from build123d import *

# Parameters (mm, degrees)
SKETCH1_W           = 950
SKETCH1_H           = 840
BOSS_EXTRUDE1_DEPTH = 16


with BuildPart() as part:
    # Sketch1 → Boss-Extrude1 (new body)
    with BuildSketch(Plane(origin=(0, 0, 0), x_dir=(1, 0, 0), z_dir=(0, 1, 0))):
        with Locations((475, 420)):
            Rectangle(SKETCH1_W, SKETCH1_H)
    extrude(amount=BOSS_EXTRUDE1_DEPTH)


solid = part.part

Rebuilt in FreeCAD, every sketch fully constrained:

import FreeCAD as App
import Part
import Sketcher
from FreeCAD import Vector

doc = App.newDocument("Part")
params = doc.addObject("Spreadsheet::Sheet", "Params")
for row, (alias, value) in enumerate([
    ("sketch1_width", "950 mm"),
    ("sketch1_height", "840 mm"),
    ("pad1_length", "16 mm"),
], start=1):
    params.set(f"A{row}", alias)
    params.set(f"B{row}", "=" + value)
    params.setAlias(f"B{row}", alias)

body = doc.addObject("PartDesign::Body", "Body")

# Sketch on XZ plane
sketch1 = body.newObject("Sketcher::SketchObject", "Sketch")
sketch1.AttachmentSupport = (doc.getObject("XZ_Plane"), [""])
sketch1.MapMode = "FlatFace"
sketch1.addGeometry(Part.LineSegment(Vector(0, -840, 0), Vector(0, 0, 0)), False)
sketch1.addGeometry(Part.LineSegment(Vector(0, 0, 0), Vector(950, 0, 0)), False)
sketch1.addGeometry(Part.LineSegment(Vector(950, 0, 0), Vector(950, -840, 0)), False)
sketch1.addGeometry(Part.LineSegment(Vector(950, -840, 0), Vector(0, -840, 0)), False)
sketch1.addConstraint(Sketcher.Constraint("Coincident", 0, 2, 1, 1))
sketch1.addConstraint(Sketcher.Constraint("Coincident", 1, 2, 2, 1))
sketch1.addConstraint(Sketcher.Constraint("Coincident", 2, 2, 3, 1))
sketch1.addConstraint(Sketcher.Constraint("Coincident", 3, 2, 0, 1))
sketch1.addConstraint(Sketcher.Constraint("Vertical", 0))
sketch1.addConstraint(Sketcher.Constraint("Horizontal", 1))
sketch1.addConstraint(Sketcher.Constraint("Vertical", 2))
sketch1.addConstraint(Sketcher.Constraint("Horizontal", 3))
sketch1.addConstraint(Sketcher.Constraint("Coincident", 0, 2, -1, 1))
sketch1.addConstraint(Sketcher.Constraint("DistanceX", 1, 1, 1, 2, 950.0))
sketch1.addConstraint(Sketcher.Constraint("DistanceY", 0, 1, 0, 2, 840.0))
sketch1.setExpression("Constraints[9]", "Params.sketch1_width")
sketch1.setExpression("Constraints[10]", "Params.sketch1_height")
pad1 = body.newObject("PartDesign::Pad", "Pad")
pad1.Profile = sketch1
pad1.setExpression("Length", "Params.pad1_length")
pad1.Reversed = True

doc.recompute()
